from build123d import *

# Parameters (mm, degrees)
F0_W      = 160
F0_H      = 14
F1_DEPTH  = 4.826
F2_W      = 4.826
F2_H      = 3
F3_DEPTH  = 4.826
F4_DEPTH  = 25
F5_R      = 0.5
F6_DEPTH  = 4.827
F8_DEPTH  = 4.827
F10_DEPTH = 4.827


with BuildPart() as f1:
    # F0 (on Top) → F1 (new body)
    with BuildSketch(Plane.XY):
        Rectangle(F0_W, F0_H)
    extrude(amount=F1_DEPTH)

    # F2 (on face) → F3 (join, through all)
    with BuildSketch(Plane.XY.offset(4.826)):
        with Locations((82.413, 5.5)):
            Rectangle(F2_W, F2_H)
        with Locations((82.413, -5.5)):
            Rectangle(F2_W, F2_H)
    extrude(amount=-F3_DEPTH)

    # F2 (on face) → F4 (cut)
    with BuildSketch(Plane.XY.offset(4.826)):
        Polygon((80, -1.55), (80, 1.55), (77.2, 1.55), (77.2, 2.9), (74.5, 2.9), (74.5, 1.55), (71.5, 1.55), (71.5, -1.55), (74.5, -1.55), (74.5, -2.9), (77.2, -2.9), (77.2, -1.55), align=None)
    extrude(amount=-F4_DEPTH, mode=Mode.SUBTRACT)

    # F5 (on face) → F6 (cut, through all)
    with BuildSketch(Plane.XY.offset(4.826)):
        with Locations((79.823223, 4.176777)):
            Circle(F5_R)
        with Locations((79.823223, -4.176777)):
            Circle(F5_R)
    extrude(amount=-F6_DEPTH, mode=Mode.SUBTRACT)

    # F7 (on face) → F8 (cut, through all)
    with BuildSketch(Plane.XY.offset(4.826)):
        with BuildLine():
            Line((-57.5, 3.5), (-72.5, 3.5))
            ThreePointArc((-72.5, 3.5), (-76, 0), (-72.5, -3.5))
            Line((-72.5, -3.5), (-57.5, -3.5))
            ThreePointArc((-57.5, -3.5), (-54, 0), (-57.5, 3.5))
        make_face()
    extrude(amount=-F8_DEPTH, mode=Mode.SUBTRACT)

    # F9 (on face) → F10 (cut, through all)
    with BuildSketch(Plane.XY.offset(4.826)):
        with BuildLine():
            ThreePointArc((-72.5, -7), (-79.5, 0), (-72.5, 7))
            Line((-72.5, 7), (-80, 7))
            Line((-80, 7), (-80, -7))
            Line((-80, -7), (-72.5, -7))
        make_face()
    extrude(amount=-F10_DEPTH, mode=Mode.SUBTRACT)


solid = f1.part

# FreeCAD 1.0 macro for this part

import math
import FreeCAD as App
import Part
import Sketcher

V = App.Vector

doc = App.newDocument("Part")
params = doc.addObject("Spreadsheet::Sheet", "Params")
for row, (alias, value) in enumerate([
    ("sketch1_width", "160 mm"),
    ("sketch1_height", "14 mm"),
    ("pad1_length", "4.826 mm"),
    ("sketch2_height", "3 mm"),
    ("pad2_length", "4.826 mm"),
    ("sketch3_width", "3 mm"),
    ("sketch3_width2", "2.8 mm"),
    ("sketch3_width3", "2.7 mm"),
    ("sketch3_height", "3.1 mm"),
    ("sketch3_height2", "1.35 mm"),
    ("pocket1_length", "25 mm"),
    ("sketch4_diameter", "1 mm"),
    ("sketch5_radius", "3.5 mm"),
    ("sketch5_width", "15 mm"),
    ("sketch6_radius", "7 mm"),
    ("sketch6_width", "7.5 mm"),
], start=1):
    params.set(f"A{row}", alias)
    params.set(f"B{row}", "=" + value)
    params.setAlias(f"B{row}", alias)

body = doc.addObject("PartDesign::Body", "Body")

sketch1 = body.newObject("Sketcher::SketchObject", "Sketch")
sketch1.AttachmentSupport = (doc.getObject("XY_Plane"), [""])
sketch1.MapMode = "FlatFace"
sketch1.addGeometry(Part.LineSegment(V(-80, 7, 0), V(-80, -7, 0)), False)
sketch1.addGeometry(Part.LineSegment(V(-80, -7, 0), V(80, -7, 0)), False)
sketch1.addGeometry(Part.LineSegment(V(80, -7, 0), V(80, 7, 0)), False)
sketch1.addGeometry(Part.LineSegment(V(80, 7, 0), V(-80, 7, 0)), False)
sketch1.addConstraint(Sketcher.Constraint("Coincident", 0, 2, 1, 1))
sketch1.addConstraint(Sketcher.Constraint("Coincident", 1, 2, 2, 1))
sketch1.addConstraint(Sketcher.Constraint("Coincident", 2, 2, 3, 1))
sketch1.addConstraint(Sketcher.Constraint("Coincident", 3, 2, 0, 1))
sketch1.addConstraint(Sketcher.Constraint("Vertical", 0))
sketch1.addConstraint(Sketcher.Constraint("Horizontal", 1))
sketch1.addConstraint(Sketcher.Constraint("Vertical", 2))
sketch1.addConstraint(Sketcher.Constraint("Horizontal", 3))
sketch1.addConstraint(Sketcher.Constraint("Symmetric", 0, 2, 2, 2, -1, 1))
sketch1.addConstraint(Sketcher.Constraint("DistanceX", 1, 1, 1, 2, 160.0))
sketch1.addConstraint(Sketcher.Constraint("DistanceY", 0, 2, 0, 1, 14.0))
sketch1.setExpression("Constraints[9]", "Params.sketch1_width")
sketch1.setExpression("Constraints[10]", "Params.sketch1_height")
pad1 = body.newObject("PartDesign::Pad", "Pad")
pad1.Profile = sketch1
pad1.setExpression("Length", "Params.pad1_length")

sketch2 = body.newObject("Sketcher::SketchObject", "Sketch001")
sketch2.AttachmentSupport = (doc.getObject("XY_Plane"), [""])
sketch2.MapMode = "FlatFace"
sketch2.AttachmentOffset = App.Placement(V(0, 0, 4.826), App.Rotation())
sketch2.addGeometry(Part.LineSegment(V(80, 7, 0), V(80, 4, 0)), False)
sketch2.addGeometry(Part.LineSegment(V(80, 4, 0), V(84.826, 4, 0)), False)
sketch2.addGeometry(Part.LineSegment(V(84.826, 4, 0), V(84.826, 7, 0)), False)
sketch2.addGeometry(Part.LineSegment(V(84.826, 7, 0), V(80, 7, 0)), False)
sketch2.addGeometry(Part.LineSegment(V(80, -4, 0), V(80, -7, 0)), False)
sketch2.addGeometry(Part.LineSegment(V(80, -7, 0), V(84.826, -7, 0)), False)
sketch2.addGeometry(Part.LineSegment(V(84.826, -7, 0), V(84.826, -4, 0)), False)
sketch2.addGeometry(Part.LineSegment(V(84.826, -4, 0), V(80, -4, 0)), False)
sketch2.addConstraint(Sketcher.Constraint("Coincident", 0, 2, 1, 1))
sketch2.addConstraint(Sketcher.Constraint("Coincident", 1, 2, 2, 1))
sketch2.addConstraint(Sketcher.Constraint("Coincident", 2, 2, 3, 1))
sketch2.addConstraint(Sketcher.Constraint("Coincident", 3, 2, 0, 1))
sketch2.addConstraint(Sketcher.Constraint("Coincident", 4, 2, 5, 1))
sketch2.addConstraint(Sketcher.Constraint("Coincident", 5, 2, 6, 1))
sketch2.addConstraint(Sketcher.Constraint("Coincident", 6, 2, 7, 1))
sketch2.addConstraint(Sketcher.Constraint("Coincident", 7, 2, 4, 1))
sketch2.addConstraint(Sketcher.Constraint("Vertical", 0))
sketch2.addConstraint(Sketcher.Constraint("Horizontal", 1))
sketch2.addConstraint(Sketcher.Constraint("Vertical", 2))
sketch2.addConstraint(Sketcher.Constraint("Horizontal", 3))
sketch2.addConstraint(Sketcher.Constraint("Vertical", 4))
sketch2.addConstraint(Sketcher.Constraint("Horizontal", 5))
sketch2.addConstraint(Sketcher.Constraint("Vertical", 6))
sketch2.addConstraint(Sketcher.Constraint("Horizontal", 7))
sketch2.addConstraint(Sketcher.Constraint("Symmetric", 3, 2, 4, 2, -1))
sketch2.addConstraint(Sketcher.Constraint("Symmetric", 1, 2, 6, 2, -1))
sketch2.addConstraint(Sketcher.Constraint("DistanceY", 0, 2, 0, 1, 3.0))
sketch2.addConstraint(Sketcher.Constraint("DistanceX", -1, 1, 0, 2, 80.0))
sketch2.addConstraint(Sketcher.Constraint("DistanceY", -1, 1, 0, 2, 4.0))
sketch2.addConstraint(Sketcher.Constraint("DistanceX", 1, 1, 1, 2, 4.826))
sketch2.setExpression("Constraints[18]", "Params.sketch2_height")
pad2 = body.newObject("PartDesign::Pad", "Pad001")
pad2.Profile = sketch2
pad2.setExpression("Length", "Params.pad2_length")
pad2.Reversed = True

sketch3 = body.newObject("Sketcher::SketchObject", "Sketch002")
sketch3.AttachmentSupport = (doc.getObject("XY_Plane"), [""])
sketch3.MapMode = "FlatFace"
sketch3.AttachmentOffset = App.Placement(V(0, 0, 4.826), App.Rotation())
sketch3.addGeometry(Part.LineSegment(V(80, -1.55, 0), V(80, 1.55, 0)), False)
sketch3.addGeometry(Part.LineSegment(V(80, 1.55, 0), V(77.2, 1.55, 0)), False)
sketch3.addGeometry(Part.LineSegment(V(77.2, 1.55, 0), V(77.2, 2.9, 0)), False)
sketch3.addGeometry(Part.LineSegment(V(77.2, 2.9, 0), V(74.5, 2.9, 0)), False)
sketch3.addGeometry(Part.LineSegment(V(74.5, 2.9, 0), V(74.5, 1.55, 0)), False)
sketch3.addGeometry(Part.LineSegment(V(74.5, 1.55, 0), V(71.5, 1.55, 0)), False)
sketch3.addGeometry(Part.LineSegment(V(71.5, 1.55, 0), V(71.5, -1.55, 0)), False)
sketch3.addGeometry(Part.LineSegment(V(71.5, -1.55, 0), V(74.5, -1.55, 0)), False)
sketch3.addGeometry(Part.LineSegment(V(74.5, -1.55, 0), V(74.5, -2.9, 0)), False)
sketch3.addGeometry(Part.LineSegment(V(74.5, -2.9, 0), V(77.2, -2.9, 0)), False)
sketch3.addGeometry(Part.LineSegment(V(77.2, -2.9, 0), V(77.2, -1.55, 0)), False)
sketch3.addGeometry(Part.LineSegment(V(77.2, -1.55, 0), V(80, -1.55, 0)), False)
sketch3.addConstraint(Sketcher.Constraint("Coincident", 0, 2, 1, 1))
sketch3.addConstraint(Sketcher.Constraint("Coincident", 1, 2, 2, 1))
sketch3.addConstraint(Sketcher.Constraint("Coincident", 2, 2, 3, 1))
sketch3.addConstraint(Sketcher.Constraint("Coincident", 3, 2, 4, 1))
sketch3.addConstraint(Sketcher.Constraint("Coincident", 4, 2, 5, 1))
sketch3.addConstraint(Sketcher.Constraint("Coincident", 5, 2, 6, 1))
sketch3.addConstraint(Sketcher.Constraint("Coincident", 6, 2, 7, 1))
sketch3.addConstraint(Sketcher.Constraint("Coincident", 7, 2, 8, 1))
sketch3.addConstraint(Sketcher.Constraint("Coincident", 8, 2, 9, 1))
sketch3.addConstraint(Sketcher.Constraint("Coincident", 9, 2, 10, 1))
sketch3.addConstraint(Sketcher.Constraint("Coincident", 10, 2, 11, 1))
sketch3.addConstraint(Sketcher.Constraint("Coincident", 11, 2, 0, 1))
sketch3.addConstraint(Sketcher.Constraint("Vertical", 0))
sketch3.addConstraint(Sketcher.Constraint("Horizontal", 1))
sketch3.addConstraint(Sketcher.Constraint("Vertical", 2))
sketch3.addConstraint(Sketcher.Constraint("Horizontal", 3))
sketch3.addConstraint(Sketcher.Constraint("Vertical", 4))
sketch3.addConstraint(Sketcher.Constraint("Horizontal", 5))
sketch3.addConstraint(Sketcher.Constraint("Vertical", 6))
sketch3.addConstraint(Sketcher.Constraint("Horizontal", 7))
sketch3.addConstraint(Sketcher.Constraint("Vertical", 8))
sketch3.addConstraint(Sketcher.Constraint("Horizontal", 9))
sketch3.addConstraint(Sketcher.Constraint("Vertical", 10))
sketch3.addConstraint(Sketcher.Constraint("Horizontal", 11))
sketch3.addConstraint(Sketcher.Constraint("Symmetric", 4, 2, 7, 2, -1))
sketch3.addConstraint(Sketcher.Constraint("Symmetric", 2, 2, 9, 2, -1))
sketch3.addConstraint(Sketcher.Constraint("Horizontal", 1, 2, 4, 2))
sketch3.addConstraint(Sketcher.Constraint("Horizontal", 7, 2, 10, 2))
sketch3.addConstraint(Sketcher.Constraint("DistanceX", 5, 2, 5, 1, 3.0))
sketch3.addConstraint(Sketcher.Constraint("DistanceX", 1, 2, 1, 1, 2.8))
sketch3.addConstraint(Sketcher.Constraint("DistanceX", 3, 2, 3, 1, 2.7))
sketch3.addConstraint(Sketcher.Constraint("DistanceY", 0, 1, 0, 2, 3.1))
sketch3.addConstraint(Sketcher.Constraint("DistanceX", -1, 1, 0, 2, 80.0))
sketch3.addConstraint(Sketcher.Constraint("DistanceY", 2, 1, 2, 2, 1.35))
sketch3.setExpression("Constraints[28]", "Params.sketch3_width")
sketch3.setExpression("Constraints[29]", "Params.sketch3_width2")
sketch3.setExpression("Constraints[30]", "Params.sketch3_width3")
sketch3.setExpression("Constraints[31]", "Params.sketch3_height")
sketch3.setExpression("Constraints[33]", "Params.sketch3_height2")
pocket1 = body.newObject("PartDesign::Pocket", "Pocket")
pocket1.Profile = sketch3
pocket1.setExpression("Length", "Params.pocket1_length")

sketch4 = body.newObject("Sketcher::SketchObject", "Sketch003")
sketch4.AttachmentSupport = (doc.getObject("XY_Plane"), [""])
sketch4.MapMode = "FlatFace"
sketch4.AttachmentOffset = App.Placement(V(0, 0, 4.826), App.Rotation())
sketch4.addGeometry(Part.Circle(V(79.823223, 4.176777, 0), V(0, 0, 1), 0.5), False)
sketch4.addGeometry(Part.Circle(V(79.823223, -4.176777, 0), V(0, 0, 1), 0.5), False)
sketch4.addConstraint(Sketcher.Constraint("Equal", 0, 1))
sketch4.addConstraint(Sketcher.Constraint("Symmetric", 0, 3, 1, 3, -1))
sketch4.addConstraint(Sketcher.Constraint("Diameter", 0, 1.0))
sketch4.addConstraint(Sketcher.Constraint("DistanceX", -1, 1, 0, 3, 79.823223))
sketch4.addConstraint(Sketcher.Constraint("DistanceY", -1, 1, 0, 3, 4.176777))
sketch4.setExpression("Constraints[2]", "Params.sketch4_diameter")
pocket2 = body.newObject("PartDesign::Pocket", "Pocket001")
pocket2.Profile = sketch4
pocket2.Type = "ThroughAll"

sketch5 = body.newObject("Sketcher::SketchObject", "Sketch004")
sketch5.AttachmentSupport = (doc.getObject("XY_Plane"), [""])
sketch5.MapMode = "FlatFace"
sketch5.AttachmentOffset = App.Placement(V(0, 0, 4.826), App.Rotation())
sketch5.addGeometry(Part.LineSegment(V(-57.5, 3.5, 0), V(-72.5, 3.5, 0)), False)
sketch5.addGeometry(Part.ArcOfCircle(Part.Circle(V(-72.5, 0, 0), V(0, 0, 1), 3.5), math.radians(90), math.radians(270)), False)
sketch5.addGeometry(Part.LineSegment(V(-72.5, -3.5, 0), V(-57.5, -3.5, 0)), False)
sketch5.addGeometry(Part.ArcOfCircle(Part.Circle(V(-57.5, 0, 0), V(0, 0, 1), 3.5), math.radians(-90), math.radians(90)), False)
sketch5.addConstraint(Sketcher.Constraint("Tangent", 0, 2, 1, 1))
sketch5.addConstraint(Sketcher.Constraint("Tangent", 1, 2, 2, 1))
sketch5.addConstraint(Sketcher.Constraint("Tangent", 2, 2, 3, 1))
sketch5.addConstraint(Sketcher.Constraint("Tangent", 3, 2, 0, 1))
sketch5.addConstraint(Sketcher.Constraint("Horizontal", 0))
sketch5.addConstraint(Sketcher.Constraint("Horizontal", 2))
sketch5.addConstraint(Sketcher.Constraint("PointOnObject", 1, 3, -1))
sketch5.addConstraint(Sketcher.Constraint("Radius", 1, 3.5))
sketch5.addConstraint(Sketcher.Constraint("DistanceX", 0, 2, 0, 1, 15.0))
sketch5.addConstraint(Sketcher.Constraint("DistanceX", 1, 3, -1, 1, 72.5))
sketch5.setExpression("Constraints[7]", "Params.sketch5_radius")
sketch5.setExpression("Constraints[8]", "Params.sketch5_width")
pocket3 = body.newObject("PartDesign::Pocket", "Pocket002")
pocket3.Profile = sketch5
pocket3.Type = "ThroughAll"

sketch6 = body.newObject("Sketcher::SketchObject", "Sketch005")
sketch6.AttachmentSupport = (doc.getObject("XY_Plane"), [""])
sketch6.MapMode = "FlatFace"
sketch6.AttachmentOffset = App.Placement(V(0, 0, 4.826), App.Rotation())
sketch6.addGeometry(Part.ArcOfCircle(Part.Circle(V(-72.5, 0, 0), V(0, 0, 1), 7), math.radians(90), math.radians(270)), False)
sketch6.addGeometry(Part.LineSegment(V(-72.5, 7, 0), V(-80, 7, 0)), False)
sketch6.addGeometry(Part.LineSegment(V(-80, 7, 0), V(-80, -7, 0)), False)
sketch6.addGeometry(Part.LineSegment(V(-80, -7, 0), V(-72.5, -7, 0)), False)
sketch6.addConstraint(Sketcher.Constraint("Tangent", 0, 1, 1, 1))
sketch6.addConstraint(Sketcher.Constraint("Coincident", 1, 2, 2, 1))
sketch6.addConstraint(Sketcher.Constraint("Coincident", 2, 2, 3, 1))
sketch6.addConstraint(Sketcher.Constraint("Tangent", 3, 2, 0, 2))
sketch6.addConstraint(Sketcher.Constraint("Horizontal", 1))
sketch6.addConstraint(Sketcher.Constraint("Vertical", 2))
sketch6.addConstraint(Sketcher.Constraint("Horizontal", 3))
sketch6.addConstraint(Sketcher.Constraint("PointOnObject", 0, 3, -1))
sketch6.addConstraint(Sketcher.Constraint("Radius", 0, 7.0))
sketch6.addConstraint(Sketcher.Constraint("DistanceX", 1, 2, 1, 1, 7.5))
sketch6.addConstraint(Sketcher.Constraint("DistanceX", 1, 2, -1, 1, 80.0))
sketch6.setExpression("Constraints[8]", "Params.sketch6_radius")
sketch6.setExpression("Constraints[9]", "Params.sketch6_width")
pocket4 = body.newObject("PartDesign::Pocket", "Pocket003")
pocket4.Profile = sketch6
pocket4.Type = "ThroughAll"

doc.recompute()
